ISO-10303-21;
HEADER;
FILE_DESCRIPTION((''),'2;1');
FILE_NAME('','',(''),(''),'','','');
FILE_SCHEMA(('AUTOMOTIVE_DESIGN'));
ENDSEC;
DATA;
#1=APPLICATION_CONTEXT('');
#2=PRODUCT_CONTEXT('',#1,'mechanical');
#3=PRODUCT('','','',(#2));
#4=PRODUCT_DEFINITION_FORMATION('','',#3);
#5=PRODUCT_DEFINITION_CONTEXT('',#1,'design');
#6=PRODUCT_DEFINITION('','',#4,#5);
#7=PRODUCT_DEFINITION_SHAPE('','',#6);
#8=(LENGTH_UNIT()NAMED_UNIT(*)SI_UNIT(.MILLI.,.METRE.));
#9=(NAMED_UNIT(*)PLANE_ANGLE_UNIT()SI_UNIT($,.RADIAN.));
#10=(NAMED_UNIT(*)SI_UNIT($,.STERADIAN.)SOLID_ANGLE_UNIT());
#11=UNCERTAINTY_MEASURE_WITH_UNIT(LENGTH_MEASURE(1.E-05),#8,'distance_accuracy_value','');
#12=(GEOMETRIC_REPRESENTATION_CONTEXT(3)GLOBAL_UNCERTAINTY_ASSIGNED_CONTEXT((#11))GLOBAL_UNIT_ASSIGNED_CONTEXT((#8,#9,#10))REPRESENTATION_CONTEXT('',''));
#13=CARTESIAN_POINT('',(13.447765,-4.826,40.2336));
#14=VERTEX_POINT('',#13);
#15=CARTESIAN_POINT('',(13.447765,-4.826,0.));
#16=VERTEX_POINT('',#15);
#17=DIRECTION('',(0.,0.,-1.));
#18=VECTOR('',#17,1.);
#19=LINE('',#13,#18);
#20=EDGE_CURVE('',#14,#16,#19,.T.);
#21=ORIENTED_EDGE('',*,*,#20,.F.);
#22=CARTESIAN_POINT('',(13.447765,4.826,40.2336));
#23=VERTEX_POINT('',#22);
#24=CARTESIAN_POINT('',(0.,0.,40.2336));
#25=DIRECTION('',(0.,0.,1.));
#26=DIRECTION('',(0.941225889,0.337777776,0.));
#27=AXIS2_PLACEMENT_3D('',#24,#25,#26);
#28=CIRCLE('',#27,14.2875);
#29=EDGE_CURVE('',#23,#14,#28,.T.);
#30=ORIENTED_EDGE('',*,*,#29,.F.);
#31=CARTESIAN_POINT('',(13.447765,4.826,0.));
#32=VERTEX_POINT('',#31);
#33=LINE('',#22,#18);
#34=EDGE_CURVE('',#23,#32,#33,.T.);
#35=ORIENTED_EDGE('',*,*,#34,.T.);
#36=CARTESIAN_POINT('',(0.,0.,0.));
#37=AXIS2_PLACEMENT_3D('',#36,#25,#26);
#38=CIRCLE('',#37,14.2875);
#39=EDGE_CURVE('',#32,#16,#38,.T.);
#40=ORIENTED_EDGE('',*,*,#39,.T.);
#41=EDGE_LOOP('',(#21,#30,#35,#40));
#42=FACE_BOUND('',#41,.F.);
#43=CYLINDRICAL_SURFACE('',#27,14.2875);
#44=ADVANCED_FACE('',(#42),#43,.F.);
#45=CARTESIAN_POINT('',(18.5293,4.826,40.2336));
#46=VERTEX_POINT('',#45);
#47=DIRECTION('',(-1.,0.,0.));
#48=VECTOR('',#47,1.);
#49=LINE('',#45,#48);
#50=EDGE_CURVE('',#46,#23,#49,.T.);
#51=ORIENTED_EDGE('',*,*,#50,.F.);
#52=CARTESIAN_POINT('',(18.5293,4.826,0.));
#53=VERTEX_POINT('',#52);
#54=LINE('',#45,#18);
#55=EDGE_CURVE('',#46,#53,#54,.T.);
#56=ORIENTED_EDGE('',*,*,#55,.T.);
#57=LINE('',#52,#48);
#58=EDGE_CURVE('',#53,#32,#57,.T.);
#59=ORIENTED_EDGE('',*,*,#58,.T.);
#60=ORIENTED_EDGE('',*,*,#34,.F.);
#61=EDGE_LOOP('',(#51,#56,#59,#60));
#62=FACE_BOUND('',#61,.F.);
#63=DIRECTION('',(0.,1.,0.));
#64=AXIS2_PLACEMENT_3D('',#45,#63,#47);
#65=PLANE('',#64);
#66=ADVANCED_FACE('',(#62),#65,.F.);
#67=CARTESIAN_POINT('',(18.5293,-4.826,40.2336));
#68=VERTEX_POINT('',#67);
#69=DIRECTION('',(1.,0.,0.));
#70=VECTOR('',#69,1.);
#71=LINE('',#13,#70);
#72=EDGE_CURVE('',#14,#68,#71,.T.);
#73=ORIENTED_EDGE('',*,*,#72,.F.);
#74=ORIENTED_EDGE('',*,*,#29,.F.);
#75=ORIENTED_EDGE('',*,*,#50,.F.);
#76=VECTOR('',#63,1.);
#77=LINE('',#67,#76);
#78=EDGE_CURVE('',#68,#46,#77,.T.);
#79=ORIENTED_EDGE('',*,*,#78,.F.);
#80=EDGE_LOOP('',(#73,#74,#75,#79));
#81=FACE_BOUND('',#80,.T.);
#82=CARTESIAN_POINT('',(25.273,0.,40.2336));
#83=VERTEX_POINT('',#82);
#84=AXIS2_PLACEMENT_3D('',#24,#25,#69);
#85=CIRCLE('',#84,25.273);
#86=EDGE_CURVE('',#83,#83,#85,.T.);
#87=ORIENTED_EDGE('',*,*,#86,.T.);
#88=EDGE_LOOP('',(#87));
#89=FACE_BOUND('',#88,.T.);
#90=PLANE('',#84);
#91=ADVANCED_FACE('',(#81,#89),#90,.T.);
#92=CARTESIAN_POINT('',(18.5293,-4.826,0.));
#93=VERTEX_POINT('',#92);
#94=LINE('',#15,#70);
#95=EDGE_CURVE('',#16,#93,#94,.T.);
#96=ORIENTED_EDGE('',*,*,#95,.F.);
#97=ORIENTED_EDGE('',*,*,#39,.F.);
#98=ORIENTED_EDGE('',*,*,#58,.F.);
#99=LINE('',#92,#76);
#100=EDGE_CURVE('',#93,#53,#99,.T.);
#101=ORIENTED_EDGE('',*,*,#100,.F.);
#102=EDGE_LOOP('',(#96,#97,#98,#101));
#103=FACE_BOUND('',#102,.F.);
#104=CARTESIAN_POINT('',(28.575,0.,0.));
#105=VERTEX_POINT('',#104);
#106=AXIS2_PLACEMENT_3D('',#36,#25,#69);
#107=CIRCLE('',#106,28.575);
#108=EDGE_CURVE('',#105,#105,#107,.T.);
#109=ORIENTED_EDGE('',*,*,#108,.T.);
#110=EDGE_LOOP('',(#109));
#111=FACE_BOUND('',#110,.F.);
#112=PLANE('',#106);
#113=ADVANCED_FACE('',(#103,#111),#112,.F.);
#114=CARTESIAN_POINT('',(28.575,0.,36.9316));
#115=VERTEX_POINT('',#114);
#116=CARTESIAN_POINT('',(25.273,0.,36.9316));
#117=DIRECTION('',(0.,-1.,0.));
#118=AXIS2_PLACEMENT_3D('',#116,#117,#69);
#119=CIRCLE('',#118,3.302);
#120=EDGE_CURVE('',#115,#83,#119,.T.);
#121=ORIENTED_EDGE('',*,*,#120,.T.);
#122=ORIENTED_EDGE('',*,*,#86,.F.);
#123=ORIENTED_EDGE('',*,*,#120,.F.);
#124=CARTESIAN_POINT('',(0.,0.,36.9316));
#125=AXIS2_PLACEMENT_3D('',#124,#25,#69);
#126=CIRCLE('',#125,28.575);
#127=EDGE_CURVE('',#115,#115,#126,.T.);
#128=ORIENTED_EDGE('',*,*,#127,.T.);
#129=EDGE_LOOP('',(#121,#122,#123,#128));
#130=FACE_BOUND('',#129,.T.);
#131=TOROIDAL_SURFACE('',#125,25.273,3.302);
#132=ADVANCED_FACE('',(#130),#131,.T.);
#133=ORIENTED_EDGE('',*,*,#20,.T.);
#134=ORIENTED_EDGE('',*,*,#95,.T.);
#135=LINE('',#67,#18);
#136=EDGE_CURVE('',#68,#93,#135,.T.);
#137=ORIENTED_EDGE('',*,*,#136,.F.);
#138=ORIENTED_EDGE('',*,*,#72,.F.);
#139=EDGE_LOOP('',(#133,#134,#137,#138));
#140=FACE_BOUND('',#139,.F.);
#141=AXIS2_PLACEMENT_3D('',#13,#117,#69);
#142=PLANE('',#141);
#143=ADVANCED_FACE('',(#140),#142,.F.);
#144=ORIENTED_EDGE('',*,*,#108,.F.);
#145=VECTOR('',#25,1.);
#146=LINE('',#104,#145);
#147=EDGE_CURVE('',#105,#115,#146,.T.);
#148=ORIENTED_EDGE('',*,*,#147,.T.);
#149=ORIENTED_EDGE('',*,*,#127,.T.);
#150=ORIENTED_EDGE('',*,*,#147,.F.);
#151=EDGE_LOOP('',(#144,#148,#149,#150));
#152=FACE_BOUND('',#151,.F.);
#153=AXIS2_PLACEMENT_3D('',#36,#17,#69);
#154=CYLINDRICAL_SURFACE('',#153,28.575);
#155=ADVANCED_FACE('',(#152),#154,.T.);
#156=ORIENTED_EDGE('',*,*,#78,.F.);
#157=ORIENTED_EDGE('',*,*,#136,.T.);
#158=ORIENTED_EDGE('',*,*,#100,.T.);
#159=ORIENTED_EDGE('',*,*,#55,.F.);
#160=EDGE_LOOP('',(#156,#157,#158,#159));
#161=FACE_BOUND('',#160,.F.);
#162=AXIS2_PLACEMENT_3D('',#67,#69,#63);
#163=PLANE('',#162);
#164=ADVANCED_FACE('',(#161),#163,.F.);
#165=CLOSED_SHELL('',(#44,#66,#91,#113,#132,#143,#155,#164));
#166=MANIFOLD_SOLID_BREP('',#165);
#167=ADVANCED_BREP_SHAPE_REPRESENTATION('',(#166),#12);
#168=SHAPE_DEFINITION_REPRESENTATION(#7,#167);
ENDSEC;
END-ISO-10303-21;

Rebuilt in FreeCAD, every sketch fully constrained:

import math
import FreeCAD as App
import Part
import Sketcher
from FreeCAD import Vector
Q = App.Units.Quantity


def edges_at(feature, points):
    """Names of the edges that pass closest to the given points."""
    edges = feature.Shape.Edges
    near = lambda p: min(range(len(edges)), key=lambda i: edges[i].distToShape(Part.Vertex(*p))[0])
    return sorted({f"Edge{near(p) + 1}" for p in points})

doc = App.newDocument("Part")
body = doc.addObject("PartDesign::Body", "Body")

# Sketch on XY plane
sketch1 = doc.addObject("Sketcher::SketchObject", "Sketch")
body.addObject(sketch1)
sketch1.AttachmentSupport = (doc.XY_Plane, [""])
sketch1.MapMode = "FlatFace"
sketch1.addGeometry(Part.Circle(Vector(0, 0, 0), Vector(0, 0, 1), 29), False)
sketch1.addConstraint(Sketcher.Constraint("Coincident", 0, 3, -1, 1))
sketch1.addConstraint(Sketcher.Constraint("Diameter", 0, Q("2.25 in")))
pad1 = doc.addObject("PartDesign::Pad", "Pad")
body.addObject(pad1)
pad1.Profile = sketch1
pad1.Length = Q("1.584 in")
doc.recompute()

fillet = doc.addObject("PartDesign::Fillet", "Fillet")
body.addObject(fillet)
fillet.Base = (pad1, edges_at(pad1, [(-28.575, 0, 40.234)]))
fillet.Radius = Q("0.13 in")

# Sketch on XY plane
sketch2 = doc.addObject("Sketcher::SketchObject", "Sketch001")
body.addObject(sketch2)
sketch2.AttachmentSupport = (doc.XY_Plane, [""])
sketch2.MapMode = "FlatFace"
sketch2.AttachmentOffset = App.Placement(Vector(0, 0, 1.584 * 25.4), App.Rotation())
sketch2.addGeometry(Part.LineSegment(Vector(19, 5, 0), Vector(13, 5, 0)), False)
sketch2.addGeometry(Part.ArcOfCircle(Part.Circle(Vector(0, 0, 0), Vector(0, 0, 1), 14), math.radians(20), math.radians(340)), False)
sketch2.addGeometry(Part.LineSegment(Vector(13, -5, 0), Vector(19, -5, 0)), False)
sketch2.addGeometry(Part.LineSegment(Vector(19, -5, 0), Vector(19, 5, 0)), False)
sketch2.addConstraint(Sketcher.Constraint("Coincident", 0, 2, 1, 1))
sketch2.addConstraint(Sketcher.Constraint("Coincident", 1, 2, 2, 1))
sketch2.addConstraint(Sketcher.Constraint("Coincident", 2, 2, 3, 1))
sketch2.addConstraint(Sketcher.Constraint("Coincident", 3, 2, 0, 1))
sketch2.addConstraint(Sketcher.Constraint("Horizontal", 0))
sketch2.addConstraint(Sketcher.Constraint("Horizontal", 2))
sketch2.addConstraint(Sketcher.Constraint("Vertical", 3))
sketch2.addConstraint(Sketcher.Constraint("Coincident", 1, 3, -1, 1))
sketch2.addConstraint(Sketcher.Constraint("Vertical", 0, 2, 1, 2))
sketch2.addConstraint(Sketcher.Constraint("Radius", 1, Q("0.5625 in")))
sketch2.addConstraint(Sketcher.Constraint("DistanceY", 3, 1, 3, 2, Q("0.38 in")))
sketch2.addConstraint(Sketcher.Constraint("DistanceX", -1, 1, 2, 2, Q("0.7295 in")))
pocket1 = doc.addObject("PartDesign::Pocket", "Pocket")
body.addObject(pocket1)
pocket1.Profile = sketch2
pocket1.Type = "ThroughAll"

doc.recompute()
